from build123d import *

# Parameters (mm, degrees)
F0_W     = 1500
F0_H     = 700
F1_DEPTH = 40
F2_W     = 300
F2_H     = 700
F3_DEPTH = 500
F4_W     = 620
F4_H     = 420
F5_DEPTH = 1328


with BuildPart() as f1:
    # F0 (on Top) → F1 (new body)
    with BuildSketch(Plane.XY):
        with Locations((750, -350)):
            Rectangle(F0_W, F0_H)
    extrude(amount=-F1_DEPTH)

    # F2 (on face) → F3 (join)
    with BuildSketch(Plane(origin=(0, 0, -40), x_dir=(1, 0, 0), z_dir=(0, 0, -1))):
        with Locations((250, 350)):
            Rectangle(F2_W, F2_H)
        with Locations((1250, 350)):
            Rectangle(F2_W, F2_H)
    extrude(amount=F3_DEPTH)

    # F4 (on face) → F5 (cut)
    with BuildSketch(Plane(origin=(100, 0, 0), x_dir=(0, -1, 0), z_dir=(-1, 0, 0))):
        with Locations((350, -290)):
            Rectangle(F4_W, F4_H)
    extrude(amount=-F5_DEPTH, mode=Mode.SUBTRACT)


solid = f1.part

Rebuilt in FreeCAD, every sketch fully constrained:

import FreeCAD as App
import Part
import Sketcher

V = App.Vector
Q = App.Units.Quantity


def add_polygon(sketch, points):
    """Adds a closed chain of lines whose ends are joined by coincident constraints."""
    first, n = sketch.GeometryCount, len(points)
    for a, b in zip(points, points[1:] + points[:1]):
        sketch.addGeometry(Part.LineSegment(App.Vector(*a, 0), App.Vector(*b, 0)), False)
    for i in range(n):
        sketch.addConstraint(Sketcher.Constraint("Coincident", first + i, 2, first + (i + 1) % n, 1))

doc = App.newDocument("Part")
params = doc.addObject("Spreadsheet::Sheet", "Params")
for row, (alias, value) in enumerate([
    ("sketch1_width", "1500 mm"),
    ("sketch1_height", "700 mm"),
    ("pad1_length", "40 mm"),
    ("sketch2_width", "300 mm"),
    ("sketch2_height", "700 mm"),
    ("pad2_length", "500 mm"),
    ("sketch3_width", "620 mm"),
    ("sketch3_height", "420 mm"),
    ("pocket1_length", "1328 mm"),
], start=1):
    params.set(f"A{row}", alias)
    params.set(f"B{row}", "=" + value)
    params.setAlias(f"B{row}", alias)

body = doc.addObject("PartDesign::Body", "Body")

# Sketch on XY plane
sketch1 = body.newObject("Sketcher::SketchObject", "Sketch")
sketch1.AttachmentSupport = (doc.getObject("XY_Plane"), [""])
sketch1.MapMode = "FlatFace"
add_polygon(sketch1, [(0, 0), (0, -700), (1500, -700), (1500, 0)])  # lines 0-3
sketch1.addConstraint(Sketcher.Constraint("Vertical", 0))
sketch1.addConstraint(Sketcher.Constraint("Horizontal", 1))
sketch1.addConstraint(Sketcher.Constraint("Vertical", 2))
sketch1.addConstraint(Sketcher.Constraint("Horizontal", 3))
sketch1.addConstraint(Sketcher.Constraint("Coincident", 3, 2, -1, 1))
sketch1.addConstraint(Sketcher.Constraint("DistanceX", 1, 1, 1, 2, Q("1500 mm")))
sketch1.addConstraint(Sketcher.Constraint("DistanceY", 0, 2, 0, 1, Q("700 mm")))
sketch1.setExpression("Constraints[9]", "Params.sketch1_width")
sketch1.setExpression("Constraints[10]", "Params.sketch1_height")
pad1 = body.newObject("PartDesign::Pad", "Pad")
pad1.Profile = sketch1
pad1.setExpression("Length", "Params.pad1_length")
pad1.Reversed = True

# Sketch on XY plane
sketch2 = body.newObject("Sketcher::SketchObject", "Sketch001")
sketch2.AttachmentSupport = (doc.getObject("XY_Plane"), [""])
sketch2.MapMode = "FlatFace"
sketch2.AttachmentOffset = App.Placement(V(0, 0, -40), App.Rotation())
add_polygon(sketch2, [(100, -700), (100, 0), (400, 0), (400, -700)])  # lines 0-3
add_polygon(sketch2, [(1100, -700), (1100, 0), (1400, 0), (1400, -700)])  # lines 4-7
sketch2.addConstraint(Sketcher.Constraint("Vertical", 0))
sketch2.addConstraint(Sketcher.Constraint("Horizontal", 1))
sketch2.addConstraint(Sketcher.Constraint("Vertical", 2))
sketch2.addConstraint(Sketcher.Constraint("Horizontal", 3))
sketch2.addConstraint(Sketcher.Constraint("Vertical", 4))
sketch2.addConstraint(Sketcher.Constraint("Horizontal", 5))
sketch2.addConstraint(Sketcher.Constraint("Vertical", 6))
sketch2.addConstraint(Sketcher.Constraint("Horizontal", 7))
sketch2.addConstraint(Sketcher.Constraint("PointOnObject", 0, 2, -1))
sketch2.addConstraint(Sketcher.Constraint("PointOnObject", 4, 2, -1))
sketch2.addConstraint(Sketcher.Constraint("Horizontal", 3, 2, 6, 2))
sketch2.addConstraint(Sketcher.Constraint("Equal", 3, 5))
sketch2.addConstraint(Sketcher.Constraint("DistanceX", 1, 1, 1, 2, Q("300 mm")))
sketch2.addConstraint(Sketcher.Constraint("DistanceY", 0, 1, 0, 2, Q("700 mm")))
sketch2.addConstraint(Sketcher.Constraint("DistanceX", -1, 1, 0, 2, Q("100 mm")))
sketch2.addConstraint(Sketcher.Constraint("DistanceX", -1, 1, 4, 2, Q("1100 mm")))
sketch2.setExpression("Constraints[20]", "Params.sketch2_width")
sketch2.setExpression("Constraints[21]", "Params.sketch2_height")
pad2 = body.newObject("PartDesign::Pad", "Pad001")
pad2.Profile = sketch2
pad2.setExpression("Length", "Params.pad2_length")
pad2.Reversed = True

# Sketch on YZ plane
sketch3 = body.newObject("Sketcher::SketchObject", "Sketch002")
sketch3.AttachmentSupport = (doc.getObject("YZ_Plane"), [""])
sketch3.MapMode = "FlatFace"
sketch3.AttachmentOffset = App.Placement(V(0, 0, 100), App.Rotation())
add_polygon(sketch3, [(-40, -80), (-40, -500), (-660, -500), (-660, -80)])  # lines 0-3
sketch3.addConstraint(Sketcher.Constraint("Vertical", 0))
sketch3.addConstraint(Sketcher.Constraint("Horizontal", 1))
sketch3.addConstraint(Sketcher.Constraint("Vertical", 2))
sketch3.addConstraint(Sketcher.Constraint("Horizontal", 3))
sketch3.addConstraint(Sketcher.Constraint("DistanceX", 1, 2, 1, 1, Q("620 mm")))
sketch3.addConstraint(Sketcher.Constraint("DistanceY", 0, 2, 0, 1, Q("420 mm")))
sketch3.addConstraint(Sketcher.Constraint("DistanceX", 0, 2, -1, 1, Q("40 mm")))
sketch3.addConstraint(Sketcher.Constraint("DistanceY", 0, 2, -1, 1, Q("500 mm")))
sketch3.setExpression("Constraints[8]", "Params.sketch3_width")
sketch3.setExpression("Constraints[9]", "Params.sketch3_height")
pocket1 = body.newObject("PartDesign::Pocket", "Pocket")
pocket1.Profile = sketch3
pocket1.setExpression("Length", "Params.pocket1_length")
pocket1.Reversed = True

doc.recompute()
